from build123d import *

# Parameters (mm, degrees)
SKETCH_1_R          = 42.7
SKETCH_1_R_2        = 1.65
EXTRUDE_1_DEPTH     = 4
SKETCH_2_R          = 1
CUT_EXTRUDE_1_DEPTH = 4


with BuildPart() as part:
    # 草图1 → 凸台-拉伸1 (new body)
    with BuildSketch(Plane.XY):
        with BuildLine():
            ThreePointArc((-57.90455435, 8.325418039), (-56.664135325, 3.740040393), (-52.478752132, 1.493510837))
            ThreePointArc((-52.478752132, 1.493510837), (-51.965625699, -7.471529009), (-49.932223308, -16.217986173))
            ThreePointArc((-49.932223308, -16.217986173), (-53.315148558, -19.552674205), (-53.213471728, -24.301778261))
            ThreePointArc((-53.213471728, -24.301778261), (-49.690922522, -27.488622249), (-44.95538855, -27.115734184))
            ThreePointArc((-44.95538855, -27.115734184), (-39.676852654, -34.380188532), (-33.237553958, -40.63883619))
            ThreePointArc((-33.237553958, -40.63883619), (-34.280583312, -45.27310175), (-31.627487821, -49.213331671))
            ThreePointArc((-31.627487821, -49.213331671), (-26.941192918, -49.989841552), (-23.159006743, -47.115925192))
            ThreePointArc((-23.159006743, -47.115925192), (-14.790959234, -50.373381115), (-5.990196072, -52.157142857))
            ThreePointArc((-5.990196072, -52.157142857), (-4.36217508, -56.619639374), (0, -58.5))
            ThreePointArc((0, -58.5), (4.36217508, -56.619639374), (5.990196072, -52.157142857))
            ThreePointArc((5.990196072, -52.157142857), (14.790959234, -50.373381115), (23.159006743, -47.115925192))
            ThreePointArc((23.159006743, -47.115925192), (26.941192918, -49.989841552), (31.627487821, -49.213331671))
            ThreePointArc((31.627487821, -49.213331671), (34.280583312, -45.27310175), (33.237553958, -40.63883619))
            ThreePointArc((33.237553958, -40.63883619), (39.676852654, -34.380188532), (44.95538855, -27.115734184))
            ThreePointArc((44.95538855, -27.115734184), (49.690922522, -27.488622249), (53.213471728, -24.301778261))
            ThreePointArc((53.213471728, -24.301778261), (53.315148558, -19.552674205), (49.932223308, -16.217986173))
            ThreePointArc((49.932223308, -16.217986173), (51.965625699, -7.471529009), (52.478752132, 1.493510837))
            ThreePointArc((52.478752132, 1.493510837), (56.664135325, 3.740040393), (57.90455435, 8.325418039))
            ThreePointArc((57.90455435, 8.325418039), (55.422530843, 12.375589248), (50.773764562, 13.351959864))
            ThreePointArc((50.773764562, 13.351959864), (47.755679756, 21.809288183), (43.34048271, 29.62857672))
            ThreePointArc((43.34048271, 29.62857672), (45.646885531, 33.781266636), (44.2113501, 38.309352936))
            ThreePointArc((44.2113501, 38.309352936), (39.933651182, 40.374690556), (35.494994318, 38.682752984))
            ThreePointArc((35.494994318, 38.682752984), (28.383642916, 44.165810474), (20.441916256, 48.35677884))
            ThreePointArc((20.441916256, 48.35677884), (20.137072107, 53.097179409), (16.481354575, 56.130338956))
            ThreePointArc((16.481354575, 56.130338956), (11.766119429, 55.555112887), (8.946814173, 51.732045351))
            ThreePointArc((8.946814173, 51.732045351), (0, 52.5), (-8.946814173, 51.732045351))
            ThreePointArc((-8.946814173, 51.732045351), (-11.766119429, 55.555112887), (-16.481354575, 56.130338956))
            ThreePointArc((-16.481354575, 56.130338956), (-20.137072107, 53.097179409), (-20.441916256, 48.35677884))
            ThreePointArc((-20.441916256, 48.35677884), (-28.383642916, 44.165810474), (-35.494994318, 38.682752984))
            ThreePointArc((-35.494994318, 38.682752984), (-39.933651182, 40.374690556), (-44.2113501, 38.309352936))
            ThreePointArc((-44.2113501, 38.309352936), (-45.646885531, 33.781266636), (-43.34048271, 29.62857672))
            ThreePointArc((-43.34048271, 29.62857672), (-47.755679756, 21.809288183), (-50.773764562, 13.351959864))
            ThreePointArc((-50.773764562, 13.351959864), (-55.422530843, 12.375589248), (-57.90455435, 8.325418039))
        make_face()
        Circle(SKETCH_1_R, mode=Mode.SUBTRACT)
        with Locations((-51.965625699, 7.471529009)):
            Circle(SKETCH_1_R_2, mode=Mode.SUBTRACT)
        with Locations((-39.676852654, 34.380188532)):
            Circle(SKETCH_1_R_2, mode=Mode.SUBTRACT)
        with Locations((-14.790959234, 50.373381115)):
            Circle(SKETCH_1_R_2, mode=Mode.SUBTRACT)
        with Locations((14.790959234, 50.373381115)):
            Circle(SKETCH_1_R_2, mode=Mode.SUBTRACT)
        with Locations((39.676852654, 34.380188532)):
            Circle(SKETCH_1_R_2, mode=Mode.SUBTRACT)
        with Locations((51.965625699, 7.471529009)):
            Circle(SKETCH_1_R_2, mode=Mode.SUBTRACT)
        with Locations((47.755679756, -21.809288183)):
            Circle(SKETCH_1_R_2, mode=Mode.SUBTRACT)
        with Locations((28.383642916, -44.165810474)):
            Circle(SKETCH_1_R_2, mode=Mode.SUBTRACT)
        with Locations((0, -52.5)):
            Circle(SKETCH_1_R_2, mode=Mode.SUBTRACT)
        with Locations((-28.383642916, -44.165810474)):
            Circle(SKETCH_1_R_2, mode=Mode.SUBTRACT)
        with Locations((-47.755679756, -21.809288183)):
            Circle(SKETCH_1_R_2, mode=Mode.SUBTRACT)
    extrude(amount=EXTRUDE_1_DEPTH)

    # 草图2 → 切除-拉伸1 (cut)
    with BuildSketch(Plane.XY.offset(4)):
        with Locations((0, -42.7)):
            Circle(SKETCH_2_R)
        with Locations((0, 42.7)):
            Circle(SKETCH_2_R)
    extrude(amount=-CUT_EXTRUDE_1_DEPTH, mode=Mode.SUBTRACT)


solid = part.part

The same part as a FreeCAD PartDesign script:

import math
import FreeCAD as App
import Part
import Sketcher

V = App.Vector
Q = App.Units.Quantity

doc = App.newDocument("Part")
params = doc.addObject("Spreadsheet::Sheet", "Params")
for row, (alias, value) in enumerate([
    ("sketch1_radius", "6 mm"),
    ("sketch1_diameter", "3.3 mm"),
    ("sketch1_diameter2", "85.4 mm"),
    ("sketch1_radius2", "52.5 mm"),
    ("pad1_length", "4 mm"),
    ("sketch2_diameter", "2 mm"),
    ("pocket1_length", "4 mm"),
], start=1):
    params.set(f"A{row}", alias)
    params.set(f"B{row}", "=" + value)
    params.setAlias(f"B{row}", alias)

body = doc.addObject("PartDesign::Body", "Body")

sketch1 = body.newObject("Sketcher::SketchObject", "Sketch")
sketch1.AttachmentSupport = (doc.getObject("XY_Plane"), [""])
sketch1.MapMode = "FlatFace"
sketch1.addGeometry([
    Part.ArcOfCircle(Part.Circle(V(-52, 7.5, 0), V(0, 0, 1), 6), math.radians(172), math.radians(265)),
    Part.ArcOfCircle(Part.Circle(V(0, 0, 0), V(0, 0, 1), 52.5), math.radians(178.37), math.radians(197.99)),
    Part.ArcOfCircle(Part.Circle(V(-47.8, -21.8, 0), V(0, 0, 1), 6), math.radians(111), math.radians(205)),
    Part.ArcOfCircle(Part.Circle(V(-47.8, -21.8, 0), V(0, 0, 1), 6), math.radians(-155), math.radians(-62)),
    Part.ArcOfCircle(Part.Circle(V(0, 0, 0), V(0, 0, 1), 52.5), math.radians(-148.9), math.radians(-129.28)),
    Part.ArcOfCircle(Part.Circle(V(-28.4, -44.2, 0), V(0, 0, 1), 6), math.radians(144), math.radians(237)),
    Part.ArcOfCircle(Part.Circle(V(-28.4, -44.2, 0), V(0, 0, 1), 6), math.radians(-123), math.radians(-29)),
    Part.ArcOfCircle(Part.Circle(V(0, 0, 0), V(0, 0, 1), 52.5), math.radians(-116.18), math.radians(-96.55)),
    Part.ArcOfCircle(Part.Circle(V(0, -52.5, 0), V(0, 0, 1), 6), math.radians(177), math.radians(270)),
    Part.ArcOfCircle(Part.Circle(V(0, -52.5, 0), V(0, 0, 1), 6), math.radians(-90), math.radians(3)),
    Part.ArcOfCircle(Part.Circle(V(0, 0, 0), V(0, 0, 1), 52.5), math.radians(-83.45), math.radians(-63.82)),
    Part.ArcOfCircle(Part.Circle(V(28.4, -44.2, 0), V(0, 0, 1), 6), math.radians(-151), math.radians(-57)),
    Part.ArcOfCircle(Part.Circle(V(28.4, -44.2, 0), V(0, 0, 1), 6), math.radians(-57), math.radians(36)),
    Part.ArcOfCircle(Part.Circle(V(0, 0, 0), V(0, 0, 1), 52.5), math.radians(-50.72), math.radians(-31.1)),
    Part.ArcOfCircle(Part.Circle(V(47.8, -21.8, 0), V(0, 0, 1), 6), math.radians(-118), math.radians(-25)),
    Part.ArcOfCircle(Part.Circle(V(47.8, -21.8, 0), V(0, 0, 1), 6), math.radians(-25), math.radians(69)),
    Part.ArcOfCircle(Part.Circle(V(0, 0, 0), V(0, 0, 1), 52.5), math.radians(-17.99), math.radians(1.63)),
    Part.ArcOfCircle(Part.Circle(V(52, 7.5, 0), V(0, 0, 1), 6), math.radians(-85), math.radians(8)),
    Part.ArcOfCircle(Part.Circle(V(52, 7.5, 0), V(0, 0, 1), 6), math.radians(8), math.radians(101)),
    Part.ArcOfCircle(Part.Circle(V(0, 0, 0), V(0, 0, 1), 52.5), math.radians(14.73), math.radians(34.36)),
    Part.ArcOfCircle(Part.Circle(V(39.7, 34.4, 0), V(0, 0, 1), 6), math.radians(-52), math.radians(41)),
    Part.ArcOfCircle(Part.Circle(V(39.7, 34.4, 0), V(0, 0, 1), 6), math.radians(41), math.radians(134)),
    Part.ArcOfCircle(Part.Circle(V(0, 0, 0), V(0, 0, 1), 52.5), math.radians(47.46), math.radians(67.08)),
    Part.ArcOfCircle(Part.Circle(V(14.8, 50.4, 0), V(0, 0, 1), 6), math.radians(-20), math.radians(74)),
    Part.ArcOfCircle(Part.Circle(V(14.8, 50.4, 0), V(0, 0, 1), 6), math.radians(74), math.radians(167)),
    Part.ArcOfCircle(Part.Circle(V(0, 0, 0), V(0, 0, 1), 52.5), math.radians(80.19), math.radians(99.81)),
    Part.ArcOfCircle(Part.Circle(V(-14.8, 50.4, 0), V(0, 0, 1), 6), math.radians(13), math.radians(106)),
    Part.ArcOfCircle(Part.Circle(V(-14.8, 50.4, 0), V(0, 0, 1), 6), math.radians(106), math.radians(200)),
    Part.ArcOfCircle(Part.Circle(V(0, 0, 0), V(0, 0, 1), 52.5), math.radians(112.92), math.radians(132.54)),
    Part.ArcOfCircle(Part.Circle(V(-39.7, 34.4, 0), V(0, 0, 1), 6), math.radians(46), math.radians(139)),
    Part.ArcOfCircle(Part.Circle(V(-39.7, 34.4, 0), V(0, 0, 1), 6), math.radians(139), math.radians(232)),
    Part.ArcOfCircle(Part.Circle(V(0, 0, 0), V(0, 0, 1), 52.5), math.radians(145.64), math.radians(165.27)),
    Part.ArcOfCircle(Part.Circle(V(-52, 7.5, 0), V(0, 0, 1), 6), math.radians(79), math.radians(172)),
    Part.Circle(V(-28.4, -44.2, 0), V(0, 0, 1), 1.6),
    Part.Circle(V(-47.8, -21.8, 0), V(0, 0, 1), 1.6),
    Part.Circle(V(0, -52.5, 0), V(0, 0, 1), 1.6),
    Part.Circle(V(28.4, -44.2, 0), V(0, 0, 1), 1.6),
    Part.Circle(V(47.8, -21.8, 0), V(0, 0, 1), 1.6),
    Part.Circle(V(-52, 7.5, 0), V(0, 0, 1), 1.6),
    Part.Circle(V(-39.7, 34.4, 0), V(0, 0, 1), 1.6),
    Part.Circle(V(-14.8, 50.4, 0), V(0, 0, 1), 1.6),
    Part.Circle(V(0, 0, 0), V(0, 0, 1), 42.7),
    Part.Circle(V(52, 7.5, 0), V(0, 0, 1), 1.6),
    Part.Circle(V(14.8, 50.4, 0), V(0, 0, 1), 1.6),
    Part.Circle(V(39.7, 34.4, 0), V(0, 0, 1), 1.6),
], False)
sketch1.addConstraint([
    Sketcher.Constraint("Coincident", 0, 2, 1, 1),
    Sketcher.Constraint("Coincident", 1, 2, 2, 1),
    Sketcher.Constraint("Tangent", 2, 2, 3, 1),
    Sketcher.Constraint("Coincident", 3, 2, 4, 1),
    Sketcher.Constraint("Coincident", 4, 2, 5, 1),
    Sketcher.Constraint("Tangent", 5, 2, 6, 1),
    Sketcher.Constraint("Coincident", 6, 2, 7, 1),
    Sketcher.Constraint("Coincident", 7, 2, 8, 1),
    Sketcher.Constraint("Tangent", 8, 2, 9, 1),
    Sketcher.Constraint("Coincident", 9, 2, 10, 1),
    Sketcher.Constraint("Coincident", 10, 2, 11, 1),
    Sketcher.Constraint("Tangent", 11, 2, 12, 1),
    Sketcher.Constraint("Coincident", 12, 2, 13, 1),
    Sketcher.Constraint("Coincident", 13, 2, 14, 1),
    Sketcher.Constraint("Tangent", 14, 2, 15, 1),
    Sketcher.Constraint("Coincident", 15, 2, 16, 1),
    Sketcher.Constraint("Coincident", 16, 2, 17, 1),
    Sketcher.Constraint("Tangent", 17, 2, 18, 1),
    Sketcher.Constraint("Coincident", 18, 2, 19, 1),
    Sketcher.Constraint("Coincident", 19, 2, 20, 1),
    Sketcher.Constraint("Tangent", 20, 2, 21, 1),
    Sketcher.Constraint("Coincident", 21, 2, 22, 1),
    Sketcher.Constraint("Coincident", 22, 2, 23, 1),
    Sketcher.Constraint("Tangent", 23, 2, 24, 1),
    Sketcher.Constraint("Coincident", 24, 2, 25, 1),
    Sketcher.Constraint("Coincident", 25, 2, 26, 1),
    Sketcher.Constraint("Tangent", 26, 2, 27, 1),
    Sketcher.Constraint("Coincident", 27, 2, 28, 1),
    Sketcher.Constraint("Coincident", 28, 2, 29, 1),
    Sketcher.Constraint("Tangent", 29, 2, 30, 1),
    Sketcher.Constraint("Coincident", 30, 2, 31, 1),
    Sketcher.Constraint("Coincident", 31, 2, 32, 1),
    Sketcher.Constraint("Tangent", 32, 2, 0, 1),
    Sketcher.Constraint("Coincident", 1, 3, -1, 1),
    Sketcher.Constraint("Coincident", 4, 3, -1, 1),
    Sketcher.Constraint("Coincident", 7, 3, -1, 1),
    Sketcher.Constraint("Coincident", 10, 3, -1, 1),
    Sketcher.Constraint("Coincident", 13, 3, -1, 1),
    Sketcher.Constraint("Coincident", 16, 3, -1, 1),
    Sketcher.Constraint("Coincident", 19, 3, -1, 1),
    Sketcher.Constraint("Coincident", 22, 3, -1, 1),
    Sketcher.Constraint("Coincident", 25, 3, -1, 1),
    Sketcher.Constraint("Coincident", 28, 3, -1, 1),
    Sketcher.Constraint("Coincident", 31, 3, -1, 1),
    Sketcher.Constraint("Coincident", 41, 3, -1, 1),
    Sketcher.Constraint("Coincident", 33, 3, 5, 3),
    Sketcher.Constraint("Coincident", 34, 3, 2, 3),
    Sketcher.Constraint("Coincident", 35, 3, 8, 3),
    Sketcher.Constraint("Coincident", 36, 3, 11, 3),
    Sketcher.Constraint("Coincident", 37, 3, 14, 3),
    Sketcher.Constraint("Coincident", 38, 3, 0, 3),
    Sketcher.Constraint("Coincident", 39, 3, 29, 3),
    Sketcher.Constraint("Coincident", 40, 3, 26, 3),
    Sketcher.Constraint("Coincident", 42, 3, 17, 3),
    Sketcher.Constraint("Coincident", 43, 3, 23, 3),
    Sketcher.Constraint("Coincident", 44, 3, 20, 3),
    Sketcher.Constraint("Equal", 0, 2),
    Sketcher.Constraint("Equal", 2, 3),
    Sketcher.Constraint("Equal", 1, 4),
    Sketcher.Constraint("Equal", 3, 5),
    Sketcher.Constraint("Equal", 5, 6),
    Sketcher.Constraint("Equal", 4, 7),
    Sketcher.Constraint("Equal", 6, 8),
    Sketcher.Constraint("Equal", 8, 9),
    Sketcher.Constraint("Equal", 7, 10),
    Sketcher.Constraint("Equal", 9, 11),
    Sketcher.Constraint("Equal", 11, 12),
    Sketcher.Constraint("Equal", 10, 13),
    Sketcher.Constraint("Equal", 12, 14),
    Sketcher.Constraint("Equal", 14, 15),
    Sketcher.Constraint("Equal", 13, 16),
    Sketcher.Constraint("Equal", 15, 17),
    Sketcher.Constraint("Equal", 17, 18),
    Sketcher.Constraint("Equal", 16, 19),
    Sketcher.Constraint("Equal", 18, 20),
    Sketcher.Constraint("Equal", 20, 21),
    Sketcher.Constraint("Equal", 19, 22),
    Sketcher.Constraint("Equal", 21, 23),
    Sketcher.Constraint("Equal", 23, 24),
    Sketcher.Constraint("Equal", 22, 25),
    Sketcher.Constraint("Equal", 24, 26),
    Sketcher.Constraint("Equal", 26, 27),
    Sketcher.Constraint("Equal", 25, 28),
    Sketcher.Constraint("Equal", 27, 29),
    Sketcher.Constraint("Equal", 29, 30),
    Sketcher.Constraint("Equal", 28, 31),
    Sketcher.Constraint("Equal", 30, 32),
    Sketcher.Constraint("Equal", 33, 34),
    Sketcher.Constraint("Equal", 34, 35),
    Sketcher.Constraint("Equal", 35, 36),
    Sketcher.Constraint("Equal", 36, 37),
    Sketcher.Constraint("Equal", 37, 38),
    Sketcher.Constraint("Equal", 38, 39),
    Sketcher.Constraint("Equal", 39, 40),
    Sketcher.Constraint("Equal", 40, 42),
    Sketcher.Constraint("Equal", 42, 43),
    Sketcher.Constraint("Equal", 43, 44),
    Sketcher.Constraint("Symmetric", 5, 3, 11, 3, -2),
    Sketcher.Constraint("Symmetric", 2, 3, 14, 3, -2),
    Sketcher.Constraint("Symmetric", 0, 3, 17, 3, -2),
    Sketcher.Constraint("Symmetric", 23, 3, 26, 3, -2),
    Sketcher.Constraint("Symmetric", 20, 3, 29, 3, -2),
    Sketcher.Constraint("PointOnObject", 8, 3, -2),
    Sketcher.Constraint("PointOnObject", 8, 2, -2),
    Sketcher.Constraint("Horizontal", 5, 2, 11, 2),
    Sketcher.Constraint("Horizontal", 2, 2, 14, 2),
    Sketcher.Constraint("Horizontal", 23, 2, 26, 2),
    Sketcher.Constraint("Horizontal", 20, 2, 29, 2),
    Sketcher.Constraint("Horizontal", 17, 2, 32, 2),
    Sketcher.Constraint("Radius", 0, Q("6 mm")),
    Sketcher.Constraint("Diameter", 33, Q("3.3 mm")),
    Sketcher.Constraint("Diameter", 41, Q("85.4 mm")),
    Sketcher.Constraint("Radius", 1, Q("52.5 mm")),
    Sketcher.Constraint("DistanceY", 8, 3, -1, 1, Q("52.5 mm")),
    Sketcher.Constraint("DistanceY", -1, 1, 0, 3, Q("7.471529 mm")),
    Sketcher.Constraint("DistanceX", 2, 3, -1, 1, Q("47.75568 mm")),
    Sketcher.Constraint("DistanceY", 2, 3, -1, 1, Q("21.809288 mm")),
    Sketcher.Constraint("DistanceY", 5, 3, -1, 1, Q("44.16581 mm")),
    Sketcher.Constraint("DistanceY", -1, 1, 20, 3, Q("34.380189 mm")),
    Sketcher.Constraint("DistanceX", -1, 1, 23, 3, Q("14.790959 mm")),
    Sketcher.Constraint("DistanceY", -1, 1, 23, 3, Q("50.373381 mm")),
    Sketcher.Constraint("DistanceY", -1, 1, 0, 2, Q("1.493511 mm")),
    Sketcher.Constraint("DistanceX", 2, 2, -1, 1, Q("53.213472 mm")),
    Sketcher.Constraint("DistanceY", 5, 2, -1, 1, Q("49.213332 mm")),
    Sketcher.Constraint("DistanceY", -1, 1, 17, 2, Q("8.325418 mm")),
    Sketcher.Constraint("DistanceX", -1, 1, 20, 2, Q("44.21135 mm")),
    Sketcher.Constraint("DistanceY", -1, 1, 23, 2, Q("56.130339 mm")),
    Sketcher.Constraint("DistanceX", 5, 3, -1, 1, Q("28.383643 mm")),
    Sketcher.Constraint("DistanceX", -1, 1, 20, 3, Q("39.676853 mm")),
])
sketch1.setExpression("Constraints[109]", "Params.sketch1_radius")
sketch1.setExpression("Constraints[110]", "Params.sketch1_diameter")
sketch1.setExpression("Constraints[111]", "Params.sketch1_diameter2")
sketch1.setExpression("Constraints[112]", "Params.sketch1_radius2")
pad1 = body.newObject("PartDesign::Pad", "Pad")
pad1.Profile = sketch1
pad1.setExpression("Length", "Params.pad1_length")

sketch2 = body.newObject("Sketcher::SketchObject", "Sketch001")
sketch2.AttachmentSupport = (doc.getObject("XY_Plane"), [""])
sketch2.MapMode = "FlatFace"
sketch2.AttachmentOffset = App.Placement(V(0, 0, 4), App.Rotation())
sketch2.addGeometry([
    Part.Circle(V(0, -42.7, 0), V(0, 0, 1), 1),
    Part.Circle(V(0, 42.7, 0), V(0, 0, 1), 1),
], False)
sketch2.addConstraint([
    Sketcher.Constraint("Equal", 0, 1),
    Sketcher.Constraint("Symmetric", 0, 3, 1, 3, -1, 1),
    Sketcher.Constraint("PointOnObject", 0, 3, -2),
    Sketcher.Constraint("Diameter", 0, Q("2 mm")),
    Sketcher.Constraint("DistanceY", 0, 3, -1, 1, Q("42.7 mm")),
])
sketch2.setExpression("Constraints[3]", "Params.sketch2_diameter")
pocket1 = body.newObject("PartDesign::Pocket", "Pocket")
pocket1.Profile = sketch2
pocket1.setExpression("Length", "Params.pocket1_length")

doc.recompute()
